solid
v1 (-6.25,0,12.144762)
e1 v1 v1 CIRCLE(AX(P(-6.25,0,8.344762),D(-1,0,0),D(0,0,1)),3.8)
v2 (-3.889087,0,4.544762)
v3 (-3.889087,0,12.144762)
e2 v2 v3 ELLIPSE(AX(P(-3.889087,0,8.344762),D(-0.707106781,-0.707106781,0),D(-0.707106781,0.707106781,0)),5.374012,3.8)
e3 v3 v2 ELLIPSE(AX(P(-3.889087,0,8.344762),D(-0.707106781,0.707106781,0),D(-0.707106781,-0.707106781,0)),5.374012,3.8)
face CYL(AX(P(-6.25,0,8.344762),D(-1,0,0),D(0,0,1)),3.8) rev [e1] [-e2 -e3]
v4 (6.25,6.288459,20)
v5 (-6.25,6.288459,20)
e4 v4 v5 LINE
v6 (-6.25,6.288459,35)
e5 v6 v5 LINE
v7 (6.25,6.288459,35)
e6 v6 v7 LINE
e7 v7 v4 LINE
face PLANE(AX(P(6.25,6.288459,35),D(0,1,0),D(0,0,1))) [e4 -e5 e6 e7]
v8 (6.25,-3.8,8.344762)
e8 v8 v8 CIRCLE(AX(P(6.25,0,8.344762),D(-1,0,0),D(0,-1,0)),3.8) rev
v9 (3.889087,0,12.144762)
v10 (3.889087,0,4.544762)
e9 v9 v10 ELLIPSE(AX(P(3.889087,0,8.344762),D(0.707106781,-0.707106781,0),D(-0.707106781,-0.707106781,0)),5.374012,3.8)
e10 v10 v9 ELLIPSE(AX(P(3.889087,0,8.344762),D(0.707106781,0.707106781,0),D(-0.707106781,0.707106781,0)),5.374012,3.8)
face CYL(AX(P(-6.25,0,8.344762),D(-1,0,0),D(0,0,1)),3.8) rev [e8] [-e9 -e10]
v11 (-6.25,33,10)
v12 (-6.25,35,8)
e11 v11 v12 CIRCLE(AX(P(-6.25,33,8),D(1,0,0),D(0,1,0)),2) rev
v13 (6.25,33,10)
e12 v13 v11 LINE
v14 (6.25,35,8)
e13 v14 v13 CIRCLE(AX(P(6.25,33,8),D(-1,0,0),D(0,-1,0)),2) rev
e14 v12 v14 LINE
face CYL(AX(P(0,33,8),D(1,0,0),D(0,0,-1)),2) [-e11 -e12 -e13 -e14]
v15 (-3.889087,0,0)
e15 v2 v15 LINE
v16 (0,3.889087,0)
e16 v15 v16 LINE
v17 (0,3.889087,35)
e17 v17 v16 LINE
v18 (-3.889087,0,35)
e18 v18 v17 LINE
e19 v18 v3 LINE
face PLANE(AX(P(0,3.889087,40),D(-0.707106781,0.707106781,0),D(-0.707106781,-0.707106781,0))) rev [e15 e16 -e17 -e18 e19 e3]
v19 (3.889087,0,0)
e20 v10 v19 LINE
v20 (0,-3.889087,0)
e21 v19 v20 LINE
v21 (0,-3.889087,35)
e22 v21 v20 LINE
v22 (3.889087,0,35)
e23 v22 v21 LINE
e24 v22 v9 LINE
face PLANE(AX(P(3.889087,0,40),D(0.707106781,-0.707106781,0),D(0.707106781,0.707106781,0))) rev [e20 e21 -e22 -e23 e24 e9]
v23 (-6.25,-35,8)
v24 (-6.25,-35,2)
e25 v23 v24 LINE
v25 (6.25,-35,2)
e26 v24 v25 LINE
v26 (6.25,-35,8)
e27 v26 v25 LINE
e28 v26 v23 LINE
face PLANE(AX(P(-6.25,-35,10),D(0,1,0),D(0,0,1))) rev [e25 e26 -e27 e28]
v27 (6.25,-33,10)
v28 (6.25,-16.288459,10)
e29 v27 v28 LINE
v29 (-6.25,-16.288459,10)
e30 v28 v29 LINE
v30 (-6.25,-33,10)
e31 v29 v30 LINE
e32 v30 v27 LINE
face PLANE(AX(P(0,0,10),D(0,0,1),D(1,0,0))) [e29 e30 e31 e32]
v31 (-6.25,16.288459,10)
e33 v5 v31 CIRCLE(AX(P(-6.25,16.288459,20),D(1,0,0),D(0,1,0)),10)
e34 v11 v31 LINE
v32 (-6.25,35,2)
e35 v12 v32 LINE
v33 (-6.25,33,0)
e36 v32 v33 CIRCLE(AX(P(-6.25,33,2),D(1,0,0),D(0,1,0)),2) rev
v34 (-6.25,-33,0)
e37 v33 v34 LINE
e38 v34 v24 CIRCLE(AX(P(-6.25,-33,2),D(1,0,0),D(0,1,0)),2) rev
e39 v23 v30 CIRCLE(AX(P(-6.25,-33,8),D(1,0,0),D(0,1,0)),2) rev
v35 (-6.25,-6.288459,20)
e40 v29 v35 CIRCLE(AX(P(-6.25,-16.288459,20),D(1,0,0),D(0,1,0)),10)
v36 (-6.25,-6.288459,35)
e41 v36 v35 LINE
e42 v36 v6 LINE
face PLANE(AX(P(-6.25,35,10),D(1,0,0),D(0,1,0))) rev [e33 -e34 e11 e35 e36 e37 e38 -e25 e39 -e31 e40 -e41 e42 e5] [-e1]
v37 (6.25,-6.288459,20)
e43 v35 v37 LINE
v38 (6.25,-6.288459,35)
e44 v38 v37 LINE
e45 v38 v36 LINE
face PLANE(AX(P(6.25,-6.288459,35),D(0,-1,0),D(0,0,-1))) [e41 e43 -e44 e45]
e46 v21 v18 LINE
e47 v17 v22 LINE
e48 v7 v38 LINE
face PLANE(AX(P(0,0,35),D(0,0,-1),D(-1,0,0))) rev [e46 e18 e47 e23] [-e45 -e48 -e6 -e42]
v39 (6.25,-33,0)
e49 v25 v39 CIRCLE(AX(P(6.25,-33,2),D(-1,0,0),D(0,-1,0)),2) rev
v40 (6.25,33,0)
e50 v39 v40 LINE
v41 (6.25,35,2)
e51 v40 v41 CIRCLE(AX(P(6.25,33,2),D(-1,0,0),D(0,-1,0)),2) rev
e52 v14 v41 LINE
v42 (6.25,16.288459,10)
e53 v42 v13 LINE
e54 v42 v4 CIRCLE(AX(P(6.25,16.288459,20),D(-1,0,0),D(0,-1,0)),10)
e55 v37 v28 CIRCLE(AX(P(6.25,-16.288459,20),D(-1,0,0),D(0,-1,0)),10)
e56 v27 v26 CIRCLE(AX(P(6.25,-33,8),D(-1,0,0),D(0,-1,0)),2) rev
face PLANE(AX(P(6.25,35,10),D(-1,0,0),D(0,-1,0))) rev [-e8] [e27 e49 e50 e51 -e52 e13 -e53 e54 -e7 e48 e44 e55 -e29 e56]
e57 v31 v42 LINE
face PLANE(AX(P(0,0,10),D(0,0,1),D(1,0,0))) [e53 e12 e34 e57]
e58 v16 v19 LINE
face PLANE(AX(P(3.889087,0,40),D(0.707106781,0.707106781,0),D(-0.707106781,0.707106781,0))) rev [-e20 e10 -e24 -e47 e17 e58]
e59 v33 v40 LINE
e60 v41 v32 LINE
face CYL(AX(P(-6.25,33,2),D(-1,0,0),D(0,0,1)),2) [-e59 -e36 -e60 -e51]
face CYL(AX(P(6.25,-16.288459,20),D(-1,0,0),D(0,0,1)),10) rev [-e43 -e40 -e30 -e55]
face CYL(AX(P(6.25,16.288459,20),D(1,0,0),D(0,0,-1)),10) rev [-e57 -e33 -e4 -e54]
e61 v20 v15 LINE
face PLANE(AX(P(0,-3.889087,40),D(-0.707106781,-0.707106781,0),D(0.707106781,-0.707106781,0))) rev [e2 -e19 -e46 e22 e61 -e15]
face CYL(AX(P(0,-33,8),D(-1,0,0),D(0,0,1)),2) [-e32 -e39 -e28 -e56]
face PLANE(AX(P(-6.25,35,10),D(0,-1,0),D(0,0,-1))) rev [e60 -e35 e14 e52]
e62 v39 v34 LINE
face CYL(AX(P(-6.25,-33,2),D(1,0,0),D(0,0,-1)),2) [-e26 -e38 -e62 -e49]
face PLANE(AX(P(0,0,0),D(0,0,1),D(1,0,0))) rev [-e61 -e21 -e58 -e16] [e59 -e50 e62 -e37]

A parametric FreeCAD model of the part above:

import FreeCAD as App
import Part
import Sketcher
from FreeCAD import Vector
Q = App.Units.Quantity


def edges_at(feature, points):
    """Names of the edges that pass closest to the given points."""
    edges = feature.Shape.Edges
    near = lambda p: min(range(len(edges)), key=lambda i: edges[i].distToShape(Part.Vertex(*p))[0])
    return sorted({f"Edge{near(p) + 1}" for p in points})

doc = App.newDocument("Part")
body = doc.addObject("PartDesign::Body", "Body")

# Sketch on XY plane
sketch1 = body.newObject("Sketcher::SketchObject", "Sketch")
sketch1.AttachmentSupport = (doc.getObject("XY_Plane"), [""])
sketch1.MapMode = "FlatFace"
sketch1.addGeometry(Part.LineSegment(Vector(-6, 35, 0), Vector(-6, -35, 0)), False)
sketch1.addGeometry(Part.LineSegment(Vector(-6, -35, 0), Vector(6, -35, 0)), False)
sketch1.addGeometry(Part.LineSegment(Vector(6, -35, 0), Vector(6, 35, 0)), False)
sketch1.addGeometry(Part.LineSegment(Vector(6, 35, 0), Vector(-6, 35, 0)), False)
sketch1.addConstraint(Sketcher.Constraint("Coincident", 0, 2, 1, 1))
sketch1.addConstraint(Sketcher.Constraint("Coincident", 1, 2, 2, 1))
sketch1.addConstraint(Sketcher.Constraint("Coincident", 2, 2, 3, 1))
sketch1.addConstraint(Sketcher.Constraint("Coincident", 3, 2, 0, 1))
sketch1.addConstraint(Sketcher.Constraint("Vertical", 0))
sketch1.addConstraint(Sketcher.Constraint("Horizontal", 1))
sketch1.addConstraint(Sketcher.Constraint("Vertical", 2))
sketch1.addConstraint(Sketcher.Constraint("Horizontal", 3))
sketch1.addConstraint(Sketcher.Constraint("Symmetric", 0, 2, 2, 2, -1, 1))
sketch1.addConstraint(Sketcher.Constraint("DistanceY", 0, 2, 0, 1, Q("70 mm")))
sketch1.addConstraint(Sketcher.Constraint("DistanceX", 1, 1, 1, 2, Q("12.5 mm")))
pad1 = body.newObject("PartDesign::Pad", "Pad")
pad1.Profile = sketch1
pad1.Length = 10

# Sketch on XY plane
sketch2 = body.newObject("Sketcher::SketchObject", "Sketch001")
sketch2.AttachmentSupport = (doc.getObject("XY_Plane"), [""])
sketch2.MapMode = "FlatFace"
sketch2.addGeometry(Part.LineSegment(Vector(6, 6, 0), Vector(6, -6, 0)), False)
sketch2.addGeometry(Part.LineSegment(Vector(6, -6, 0), Vector(-6, -6, 0)), False)
sketch2.addGeometry(Part.LineSegment(Vector(-6, -6, 0), Vector(-6, 6, 0)), False)
sketch2.addGeometry(Part.LineSegment(Vector(-6, 6, 0), Vector(6, 6, 0)), False)
sketch2.addConstraint(Sketcher.Constraint("Coincident", 0, 2, 1, 1))
sketch2.addConstraint(Sketcher.Constraint("Coincident", 1, 2, 2, 1))
sketch2.addConstraint(Sketcher.Constraint("Coincident", 2, 2, 3, 1))
sketch2.addConstraint(Sketcher.Constraint("Coincident", 3, 2, 0, 1))
sketch2.addConstraint(Sketcher.Constraint("Vertical", 0))
sketch2.addConstraint(Sketcher.Constraint("Horizontal", 1))
sketch2.addConstraint(Sketcher.Constraint("Vertical", 2))
sketch2.addConstraint(Sketcher.Constraint("Horizontal", 3))
sketch2.addConstraint(Sketcher.Constraint("Symmetric", 0, 2, 2, 2, -1, 1))
sketch2.addConstraint(Sketcher.Constraint("DistanceX", 1, 2, 1, 1, Q("12.5 mm")))
sketch2.addConstraint(Sketcher.Constraint("DistanceY", 0, 2, 0, 1, Q("12.576917 mm")))
pad2 = body.newObject("PartDesign::Pad", "Pad001")
pad2.Profile = sketch2
pad2.Length = 35

# Sketch on XY plane
sketch3 = body.newObject("Sketcher::SketchObject", "Sketch002")
sketch3.AttachmentSupport = (doc.getObject("XY_Plane"), [""])
sketch3.MapMode = "FlatFace"
sketch3.addGeometry(Part.LineSegment(Vector(0, 4, 0), Vector(4, 0, 0)), False)
sketch3.addGeometry(Part.LineSegment(Vector(4, 0, 0), Vector(0, -4, 0)), False)
sketch3.addGeometry(Part.LineSegment(Vector(0, -4, 0), Vector(-4, 0, 0)), False)
sketch3.addGeometry(Part.LineSegment(Vector(-4, 0, 0), Vector(0, 4, 0)), False)
sketch3.addConstraint(Sketcher.Constraint("Coincident", 0, 2, 1, 1))
sketch3.addConstraint(Sketcher.Constraint("Coincident", 1, 2, 2, 1))
sketch3.addConstraint(Sketcher.Constraint("Coincident", 2, 2, 3, 1))
sketch3.addConstraint(Sketcher.Constraint("Coincident", 3, 2, 0, 1))
sketch3.addConstraint(Sketcher.Constraint("Symmetric", 0, 2, 2, 2, -1, 1))
sketch3.addConstraint(Sketcher.Constraint("Symmetric", 1, 2, 3, 2, -1, 1))
sketch3.addConstraint(Sketcher.Constraint("PointOnObject", 0, 2, -1))
sketch3.addConstraint(Sketcher.Constraint("PointOnObject", 1, 2, -2))
sketch3.addConstraint(Sketcher.Constraint("Perpendicular", 0, 1))
sketch3.addConstraint(Sketcher.Constraint("Distance", 0, Q("5.5 mm")))
pocket1 = body.newObject("PartDesign::Pocket", "Pocket")
pocket1.Profile = sketch3
pocket1.Length = 40
pocket1.Reversed = True
doc.recompute()

fillet = body.newObject("PartDesign::Fillet", "Fillet")
fillet.Base = (pocket1, edges_at(pocket1, [(0, -6.288, 10), (0, 6.288, 10)]))
fillet.Radius = 10
doc.recompute()

fillet2 = body.newObject("PartDesign::Fillet", "Fillet001")
fillet2.Base = (fillet, edges_at(fillet, [
    (0, -35, 10),
    (0, -35, 0),
    (0, 35, 0),
    (0, 35, 10),
]))
fillet2.Radius = 2

# Sketch on YZ plane
sketch4 = body.newObject("Sketcher::SketchObject", "Sketch003")
sketch4.AttachmentSupport = (doc.getObject("YZ_Plane"), [""])
sketch4.MapMode = "FlatFace"
sketch4.AttachmentOffset = App.Placement(Vector(0, 0, -6.25), App.Rotation())
sketch4.addGeometry(Part.Circle(Vector(0, 8.3, 0), Vector(0, 0, 1), 3.8), False)
sketch4.addConstraint(Sketcher.Constraint("PointOnObject", 0, 3, -2))
sketch4.addConstraint(Sketcher.Constraint("Diameter", 0, Q("7.6 mm")))
sketch4.addConstraint(Sketcher.Constraint("DistanceY", -1, 1, 0, 3, Q("8.344762 mm")))
doc.recompute()
hole = body.newObject("PartDesign::Hole", "Hole")
hole.Profile = sketch4
hole.ThreadType = "None"
hole.Diameter = 7.6
hole.DepthType = "Dimension"
hole.Depth = 12.5
hole.DrillPoint = "Angled"
hole.DrillPointAngle = 118
hole.Reversed = True

doc.recompute()
